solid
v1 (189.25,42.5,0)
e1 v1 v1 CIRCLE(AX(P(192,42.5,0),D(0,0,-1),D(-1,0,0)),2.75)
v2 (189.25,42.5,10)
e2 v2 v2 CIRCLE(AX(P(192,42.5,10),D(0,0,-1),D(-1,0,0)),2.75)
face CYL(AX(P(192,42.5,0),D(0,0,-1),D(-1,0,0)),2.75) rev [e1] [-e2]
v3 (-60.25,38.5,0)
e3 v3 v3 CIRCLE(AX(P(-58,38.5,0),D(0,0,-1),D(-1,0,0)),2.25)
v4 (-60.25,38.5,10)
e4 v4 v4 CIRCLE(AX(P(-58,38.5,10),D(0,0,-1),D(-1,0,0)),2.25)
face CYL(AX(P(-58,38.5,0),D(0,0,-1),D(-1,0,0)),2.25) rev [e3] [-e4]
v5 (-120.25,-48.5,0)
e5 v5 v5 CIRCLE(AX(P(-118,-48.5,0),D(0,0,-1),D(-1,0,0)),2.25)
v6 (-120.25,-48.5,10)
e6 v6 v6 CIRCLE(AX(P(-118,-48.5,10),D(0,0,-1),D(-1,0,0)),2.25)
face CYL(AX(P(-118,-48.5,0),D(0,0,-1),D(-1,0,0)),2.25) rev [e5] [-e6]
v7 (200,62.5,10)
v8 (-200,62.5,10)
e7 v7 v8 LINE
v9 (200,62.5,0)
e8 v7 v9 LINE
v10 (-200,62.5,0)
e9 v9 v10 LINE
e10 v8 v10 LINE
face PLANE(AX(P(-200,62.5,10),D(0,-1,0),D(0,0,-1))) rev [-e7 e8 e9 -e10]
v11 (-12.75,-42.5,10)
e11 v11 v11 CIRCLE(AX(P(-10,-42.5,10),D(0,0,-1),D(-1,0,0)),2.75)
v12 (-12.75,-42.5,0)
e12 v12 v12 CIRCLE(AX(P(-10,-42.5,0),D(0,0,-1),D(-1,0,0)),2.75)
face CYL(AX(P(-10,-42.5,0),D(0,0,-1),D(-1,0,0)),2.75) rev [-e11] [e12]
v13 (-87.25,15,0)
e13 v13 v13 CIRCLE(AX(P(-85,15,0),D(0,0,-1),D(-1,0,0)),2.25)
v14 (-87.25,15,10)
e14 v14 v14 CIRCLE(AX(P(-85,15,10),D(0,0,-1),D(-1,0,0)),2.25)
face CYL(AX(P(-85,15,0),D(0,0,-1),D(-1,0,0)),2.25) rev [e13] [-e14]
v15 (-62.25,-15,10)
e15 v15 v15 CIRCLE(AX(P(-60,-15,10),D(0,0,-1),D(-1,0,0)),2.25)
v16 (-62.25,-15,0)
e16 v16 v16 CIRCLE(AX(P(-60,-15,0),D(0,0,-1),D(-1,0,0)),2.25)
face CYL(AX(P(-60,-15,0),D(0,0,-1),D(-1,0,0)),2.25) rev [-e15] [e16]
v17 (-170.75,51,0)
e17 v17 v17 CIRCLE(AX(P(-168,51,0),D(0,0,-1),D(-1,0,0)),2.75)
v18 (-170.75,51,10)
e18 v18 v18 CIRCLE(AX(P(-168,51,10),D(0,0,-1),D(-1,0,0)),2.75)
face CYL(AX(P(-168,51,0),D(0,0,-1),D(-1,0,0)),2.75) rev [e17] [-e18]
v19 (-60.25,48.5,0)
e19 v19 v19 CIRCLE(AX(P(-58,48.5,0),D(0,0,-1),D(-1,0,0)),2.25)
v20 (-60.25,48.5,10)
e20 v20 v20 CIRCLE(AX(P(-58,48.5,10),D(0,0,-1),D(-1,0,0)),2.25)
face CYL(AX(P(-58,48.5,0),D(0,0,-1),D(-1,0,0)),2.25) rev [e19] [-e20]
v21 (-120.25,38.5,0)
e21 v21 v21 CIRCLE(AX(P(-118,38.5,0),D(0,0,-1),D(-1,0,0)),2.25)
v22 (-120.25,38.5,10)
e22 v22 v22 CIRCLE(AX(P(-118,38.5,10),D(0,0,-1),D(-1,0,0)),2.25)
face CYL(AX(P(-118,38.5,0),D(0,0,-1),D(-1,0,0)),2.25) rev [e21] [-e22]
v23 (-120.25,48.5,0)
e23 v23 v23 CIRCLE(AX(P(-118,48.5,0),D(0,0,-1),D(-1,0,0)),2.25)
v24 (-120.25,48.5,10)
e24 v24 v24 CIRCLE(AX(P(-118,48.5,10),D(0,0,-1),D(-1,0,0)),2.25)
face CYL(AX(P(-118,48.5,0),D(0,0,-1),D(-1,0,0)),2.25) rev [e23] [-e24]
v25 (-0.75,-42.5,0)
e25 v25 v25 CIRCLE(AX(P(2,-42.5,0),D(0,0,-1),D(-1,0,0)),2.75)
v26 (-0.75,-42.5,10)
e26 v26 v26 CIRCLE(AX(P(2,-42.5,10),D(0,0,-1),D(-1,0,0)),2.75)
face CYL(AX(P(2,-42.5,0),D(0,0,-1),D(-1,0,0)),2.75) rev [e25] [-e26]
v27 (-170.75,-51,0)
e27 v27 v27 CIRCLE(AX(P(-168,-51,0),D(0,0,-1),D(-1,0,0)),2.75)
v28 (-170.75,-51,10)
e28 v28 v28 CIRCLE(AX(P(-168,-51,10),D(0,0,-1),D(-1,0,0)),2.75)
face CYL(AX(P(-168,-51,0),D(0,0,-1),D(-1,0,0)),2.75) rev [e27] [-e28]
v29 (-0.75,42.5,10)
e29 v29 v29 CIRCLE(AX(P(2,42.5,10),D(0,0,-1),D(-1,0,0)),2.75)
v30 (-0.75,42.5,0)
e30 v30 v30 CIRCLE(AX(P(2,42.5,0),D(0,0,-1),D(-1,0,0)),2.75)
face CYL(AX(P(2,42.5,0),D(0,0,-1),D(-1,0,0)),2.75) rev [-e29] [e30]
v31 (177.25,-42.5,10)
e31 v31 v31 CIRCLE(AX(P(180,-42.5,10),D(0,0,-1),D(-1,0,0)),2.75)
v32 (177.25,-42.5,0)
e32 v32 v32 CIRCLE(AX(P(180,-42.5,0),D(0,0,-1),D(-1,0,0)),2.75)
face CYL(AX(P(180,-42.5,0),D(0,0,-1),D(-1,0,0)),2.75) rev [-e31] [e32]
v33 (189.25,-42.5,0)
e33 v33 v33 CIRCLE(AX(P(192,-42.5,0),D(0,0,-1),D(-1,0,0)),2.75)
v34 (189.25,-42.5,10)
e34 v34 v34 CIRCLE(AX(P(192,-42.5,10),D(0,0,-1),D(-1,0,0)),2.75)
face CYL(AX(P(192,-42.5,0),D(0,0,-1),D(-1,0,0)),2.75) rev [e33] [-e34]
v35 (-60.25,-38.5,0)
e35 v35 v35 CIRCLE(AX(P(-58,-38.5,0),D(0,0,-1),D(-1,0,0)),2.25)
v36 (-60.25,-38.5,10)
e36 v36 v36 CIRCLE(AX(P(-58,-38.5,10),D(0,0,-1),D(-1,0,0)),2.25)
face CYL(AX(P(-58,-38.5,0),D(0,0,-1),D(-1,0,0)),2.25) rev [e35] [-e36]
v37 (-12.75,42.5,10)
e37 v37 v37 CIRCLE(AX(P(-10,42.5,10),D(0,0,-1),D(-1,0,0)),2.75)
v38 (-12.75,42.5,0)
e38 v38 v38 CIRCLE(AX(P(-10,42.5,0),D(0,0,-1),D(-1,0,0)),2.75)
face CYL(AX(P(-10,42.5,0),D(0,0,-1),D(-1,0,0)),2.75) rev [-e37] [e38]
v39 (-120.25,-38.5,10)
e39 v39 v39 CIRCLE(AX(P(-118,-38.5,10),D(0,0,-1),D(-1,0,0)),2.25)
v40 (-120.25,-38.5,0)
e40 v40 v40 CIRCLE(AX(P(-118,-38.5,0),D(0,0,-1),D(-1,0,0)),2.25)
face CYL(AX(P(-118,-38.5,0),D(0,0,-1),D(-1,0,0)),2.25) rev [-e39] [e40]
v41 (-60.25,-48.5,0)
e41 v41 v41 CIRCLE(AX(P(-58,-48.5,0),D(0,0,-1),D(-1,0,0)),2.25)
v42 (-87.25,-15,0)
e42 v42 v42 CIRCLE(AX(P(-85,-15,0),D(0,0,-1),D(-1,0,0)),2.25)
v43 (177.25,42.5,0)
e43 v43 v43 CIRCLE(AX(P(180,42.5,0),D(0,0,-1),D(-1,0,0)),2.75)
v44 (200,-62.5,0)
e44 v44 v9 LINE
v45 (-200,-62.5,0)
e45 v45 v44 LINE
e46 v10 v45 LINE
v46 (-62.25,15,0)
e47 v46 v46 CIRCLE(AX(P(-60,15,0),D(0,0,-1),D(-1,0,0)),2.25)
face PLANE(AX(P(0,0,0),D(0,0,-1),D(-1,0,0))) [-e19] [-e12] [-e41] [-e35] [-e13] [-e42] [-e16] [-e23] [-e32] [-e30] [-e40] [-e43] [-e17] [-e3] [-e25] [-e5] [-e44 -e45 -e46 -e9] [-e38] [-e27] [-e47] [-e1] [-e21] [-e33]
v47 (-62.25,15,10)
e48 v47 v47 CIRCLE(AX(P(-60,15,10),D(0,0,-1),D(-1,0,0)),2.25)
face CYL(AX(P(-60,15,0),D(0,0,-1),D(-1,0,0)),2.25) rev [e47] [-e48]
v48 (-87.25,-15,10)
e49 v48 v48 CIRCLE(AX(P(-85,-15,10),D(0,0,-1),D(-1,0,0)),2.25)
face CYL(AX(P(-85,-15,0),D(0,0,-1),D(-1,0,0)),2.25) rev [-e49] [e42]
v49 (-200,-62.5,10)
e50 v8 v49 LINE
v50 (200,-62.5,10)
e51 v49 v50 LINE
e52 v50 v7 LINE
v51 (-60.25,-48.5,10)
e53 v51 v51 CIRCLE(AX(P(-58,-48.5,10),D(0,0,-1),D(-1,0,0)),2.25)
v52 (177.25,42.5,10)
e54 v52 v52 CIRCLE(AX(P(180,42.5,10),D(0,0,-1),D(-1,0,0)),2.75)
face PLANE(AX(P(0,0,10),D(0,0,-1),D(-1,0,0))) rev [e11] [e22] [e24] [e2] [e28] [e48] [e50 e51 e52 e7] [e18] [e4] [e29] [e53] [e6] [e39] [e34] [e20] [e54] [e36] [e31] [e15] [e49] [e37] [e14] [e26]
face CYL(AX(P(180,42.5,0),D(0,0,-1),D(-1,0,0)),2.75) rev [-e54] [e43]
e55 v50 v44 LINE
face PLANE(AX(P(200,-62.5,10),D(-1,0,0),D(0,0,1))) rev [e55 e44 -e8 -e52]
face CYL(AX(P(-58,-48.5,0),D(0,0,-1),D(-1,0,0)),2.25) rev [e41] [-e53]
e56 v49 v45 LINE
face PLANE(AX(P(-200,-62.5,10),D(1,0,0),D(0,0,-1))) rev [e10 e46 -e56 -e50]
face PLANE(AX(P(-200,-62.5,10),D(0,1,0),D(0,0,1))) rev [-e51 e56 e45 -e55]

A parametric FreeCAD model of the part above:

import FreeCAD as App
import Part
import Sketcher
from FreeCAD import Vector

doc = App.newDocument("Part")
body = doc.addObject("PartDesign::Body", "Body")

# Sketch on XY plane
sketch1 = body.newObject("Sketcher::SketchObject", "Sketch")
sketch1.AttachmentSupport = (doc.getObject("XY_Plane"), [""])
sketch1.MapMode = "FlatFace"
sketch1.addGeometry([
    Part.LineSegment(Vector(-200, 62, 0), Vector(-200, -62, 0)),
    Part.LineSegment(Vector(-200, -62, 0), Vector(200, -62, 0)),
    Part.LineSegment(Vector(200, -62, 0), Vector(200, 62, 0)),
    Part.LineSegment(Vector(200, 62, 0), Vector(-200, 62, 0)),
], False)
sketch1.addConstraint([
    Sketcher.Constraint("Coincident", 0, 2, 1, 1),
    Sketcher.Constraint("Coincident", 1, 2, 2, 1),
    Sketcher.Constraint("Coincident", 2, 2, 3, 1),
    Sketcher.Constraint("Coincident", 3, 2, 0, 1),
    Sketcher.Constraint("Vertical", 0),
    Sketcher.Constraint("Horizontal", 1),
    Sketcher.Constraint("Vertical", 2),
    Sketcher.Constraint("Horizontal", 3),
    Sketcher.Constraint("Symmetric", 0, 2, 2, 2, -1, 1),
    Sketcher.Constraint("DistanceX", 1, 1, 1, 2, 400.0),
    Sketcher.Constraint("DistanceY", 0, 2, 0, 1, 125.0),
])
pad1 = body.newObject("PartDesign::Pad", "Pad")
pad1.Profile = sketch1
pad1.Length = 10

# Sketch on XY plane
sketch2 = body.newObject("Sketcher::SketchObject", "Sketch001")
sketch2.AttachmentSupport = (doc.getObject("XY_Plane"), [""])
sketch2.MapMode = "FlatFace"
sketch2.addGeometry([
    Part.Circle(Vector(192, 42.5, 0), Vector(0, 0, 1), 2.8),  # 0
    Part.Circle(Vector(180, 42.5, 0), Vector(0, 0, 1), 2.8),  # 1
    Part.Circle(Vector(192, -42.5, 0), Vector(0, 0, 1), 2.8),  # 2
    Part.Circle(Vector(180, -42.5, 0), Vector(0, 0, 1), 2.8),  # 3
    Part.Circle(Vector(2, 42.5, 0), Vector(0, 0, 1), 2.8),  # 4
    Part.Circle(Vector(-10, 42.5, 0), Vector(0, 0, 1), 2.8),  # 5
    Part.Circle(Vector(2, -42.5, 0), Vector(0, 0, 1), 2.8),  # 6
    Part.Circle(Vector(-10, -42.5, 0), Vector(0, 0, 1), 2.8),  # 7
    Part.Circle(Vector(-168, 51, 0), Vector(0, 0, 1), 2.8),  # 8
    Part.Circle(Vector(-168, -51, 0), Vector(0, 0, 1), 2.8),  # 9
], False)
sketch2.addConstraint([
    Sketcher.Constraint("Equal", 0, 1),
    Sketcher.Constraint("Equal", 1, 2),
    Sketcher.Constraint("Equal", 2, 3),
    Sketcher.Constraint("Equal", 3, 4),
    Sketcher.Constraint("Equal", 4, 5),
    Sketcher.Constraint("Equal", 5, 6),
    Sketcher.Constraint("Equal", 6, 7),
    Sketcher.Constraint("Equal", 7, 8),
    Sketcher.Constraint("Equal", 8, 9),
    Sketcher.Constraint("Symmetric", 0, 3, 2, 3, -1),
    Sketcher.Constraint("Symmetric", 1, 3, 3, 3, -1),
    Sketcher.Constraint("Symmetric", 4, 3, 6, 3, -1),
    Sketcher.Constraint("Symmetric", 5, 3, 7, 3, -1),
    Sketcher.Constraint("Symmetric", 8, 3, 9, 3, -1),
    Sketcher.Constraint("Horizontal", 0, 3, 1, 3),
    Sketcher.Constraint("Horizontal", 1, 3, 4, 3),
    Sketcher.Constraint("Horizontal", 4, 3, 5, 3),
    Sketcher.Constraint("Diameter", 0, 5.5),
    Sketcher.Constraint("DistanceX", -1, 1, 0, 3, 192.0),
    Sketcher.Constraint("DistanceX", -1, 1, 1, 3, 180.0),
    Sketcher.Constraint("DistanceX", -1, 1, 4, 3, 2.0),
    Sketcher.Constraint("DistanceX", 5, 3, -1, 1, 10.0),
    Sketcher.Constraint("DistanceX", 8, 3, -1, 1, 168.0),
    Sketcher.Constraint("DistanceY", -1, 1, 8, 3, 51.0),
    Sketcher.Constraint("DistanceY", 2, 3, 0, 3, 85.0),
])
doc.recompute()
hole = body.newObject("PartDesign::Hole", "Hole")
hole.Profile = sketch2
hole.ThreadType = "None"
hole.Diameter = 5.5
hole.DepthType = "ThroughAll"
hole.Reversed = True

# Sketch on XY plane
sketch3 = body.newObject("Sketcher::SketchObject", "Sketch002")
sketch3.AttachmentSupport = (doc.getObject("XY_Plane"), [""])
sketch3.MapMode = "FlatFace"
sketch3.addGeometry([
    Part.Circle(Vector(-58, 38.5, 0), Vector(0, 0, 1), 2.2),  # 0
    Part.Circle(Vector(-118, 38.5, 0), Vector(0, 0, 1), 2.2),  # 1
    Part.Circle(Vector(-118, -38.5, 0), Vector(0, 0, 1), 2.2),  # 2
    Part.Circle(Vector(-58, -38.5, 0), Vector(0, 0, 1), 2.2),  # 3
    Part.Circle(Vector(-60, -15, 0), Vector(0, 0, 1), 2.2),  # 4
    Part.Circle(Vector(-85, -15, 0), Vector(0, 0, 1), 2.2),  # 5
    Part.Circle(Vector(-85, 15, 0), Vector(0, 0, 1), 2.2),  # 6
    Part.Circle(Vector(-60, 15, 0), Vector(0, 0, 1), 2.2),  # 7
    Part.Circle(Vector(-58, -48.5, 0), Vector(0, 0, 1), 2.2),  # 8
    Part.Circle(Vector(-118, -48.5, 0), Vector(0, 0, 1), 2.2),  # 9
    Part.Circle(Vector(-58, 48.5, 0), Vector(0, 0, 1), 2.2),  # 10
    Part.Circle(Vector(-118, 48.5, 0), Vector(0, 0, 1), 2.2),  # 11
], False)
sketch3.addConstraint([
    Sketcher.Constraint("Equal", 0, 1),
    Sketcher.Constraint("Equal", 1, 2),
    Sketcher.Constraint("Equal", 2, 3),
    Sketcher.Constraint("Equal", 3, 4),
    Sketcher.Constraint("Equal", 4, 5),
    Sketcher.Constraint("Equal", 5, 6),
    Sketcher.Constraint("Equal", 6, 7),
    Sketcher.Constraint("Equal", 7, 8),
    Sketcher.Constraint("Equal", 8, 9),
    Sketcher.Constraint("Equal", 9, 10),
    Sketcher.Constraint("Equal", 10, 11),
    Sketcher.Constraint("Symmetric", 1, 3, 2, 3, -1),
    Sketcher.Constraint("Symmetric", 0, 3, 3, 3, -1),
    Sketcher.Constraint("Symmetric", 5, 3, 6, 3, -1),
    Sketcher.Constraint("Symmetric", 4, 3, 7, 3, -1),
    Sketcher.Constraint("Symmetric", 8, 3, 10, 3, -1),
    Sketcher.Constraint("Symmetric", 9, 3, 11, 3, -1),
    Sketcher.Constraint("Horizontal", 0, 3, 1, 3),
    Sketcher.Constraint("Horizontal", 4, 3, 5, 3),
    Sketcher.Constraint("Horizontal", 8, 3, 9, 3),
    Sketcher.Constraint("Vertical", 3, 3, 8, 3),
    Sketcher.Constraint("Vertical", 2, 3, 9, 3),
    Sketcher.Constraint("Diameter", 0, 4.5),
    Sketcher.Constraint("DistanceX", 0, 3, -1, 1, 58.0),
    Sketcher.Constraint("DistanceX", 1, 3, -1, 1, 118.0),
    Sketcher.Constraint("DistanceX", 4, 3, -1, 1, 60.0),
    Sketcher.Constraint("DistanceY", 4, 3, -1, 1, 15.0),
    Sketcher.Constraint("DistanceX", 5, 3, -1, 1, 85.0),
    Sketcher.Constraint("DistanceY", 2, 3, 1, 3, 77.0),
    Sketcher.Constraint("DistanceY", 8, 3, 3, 3, 10.0),
])
doc.recompute()
hole2 = body.newObject("PartDesign::Hole", "Hole001")
hole2.Profile = sketch3
hole2.ThreadType = "None"
hole2.Diameter = 4.5
hole2.DepthType = "ThroughAll"
hole2.Reversed = True

doc.recompute()
